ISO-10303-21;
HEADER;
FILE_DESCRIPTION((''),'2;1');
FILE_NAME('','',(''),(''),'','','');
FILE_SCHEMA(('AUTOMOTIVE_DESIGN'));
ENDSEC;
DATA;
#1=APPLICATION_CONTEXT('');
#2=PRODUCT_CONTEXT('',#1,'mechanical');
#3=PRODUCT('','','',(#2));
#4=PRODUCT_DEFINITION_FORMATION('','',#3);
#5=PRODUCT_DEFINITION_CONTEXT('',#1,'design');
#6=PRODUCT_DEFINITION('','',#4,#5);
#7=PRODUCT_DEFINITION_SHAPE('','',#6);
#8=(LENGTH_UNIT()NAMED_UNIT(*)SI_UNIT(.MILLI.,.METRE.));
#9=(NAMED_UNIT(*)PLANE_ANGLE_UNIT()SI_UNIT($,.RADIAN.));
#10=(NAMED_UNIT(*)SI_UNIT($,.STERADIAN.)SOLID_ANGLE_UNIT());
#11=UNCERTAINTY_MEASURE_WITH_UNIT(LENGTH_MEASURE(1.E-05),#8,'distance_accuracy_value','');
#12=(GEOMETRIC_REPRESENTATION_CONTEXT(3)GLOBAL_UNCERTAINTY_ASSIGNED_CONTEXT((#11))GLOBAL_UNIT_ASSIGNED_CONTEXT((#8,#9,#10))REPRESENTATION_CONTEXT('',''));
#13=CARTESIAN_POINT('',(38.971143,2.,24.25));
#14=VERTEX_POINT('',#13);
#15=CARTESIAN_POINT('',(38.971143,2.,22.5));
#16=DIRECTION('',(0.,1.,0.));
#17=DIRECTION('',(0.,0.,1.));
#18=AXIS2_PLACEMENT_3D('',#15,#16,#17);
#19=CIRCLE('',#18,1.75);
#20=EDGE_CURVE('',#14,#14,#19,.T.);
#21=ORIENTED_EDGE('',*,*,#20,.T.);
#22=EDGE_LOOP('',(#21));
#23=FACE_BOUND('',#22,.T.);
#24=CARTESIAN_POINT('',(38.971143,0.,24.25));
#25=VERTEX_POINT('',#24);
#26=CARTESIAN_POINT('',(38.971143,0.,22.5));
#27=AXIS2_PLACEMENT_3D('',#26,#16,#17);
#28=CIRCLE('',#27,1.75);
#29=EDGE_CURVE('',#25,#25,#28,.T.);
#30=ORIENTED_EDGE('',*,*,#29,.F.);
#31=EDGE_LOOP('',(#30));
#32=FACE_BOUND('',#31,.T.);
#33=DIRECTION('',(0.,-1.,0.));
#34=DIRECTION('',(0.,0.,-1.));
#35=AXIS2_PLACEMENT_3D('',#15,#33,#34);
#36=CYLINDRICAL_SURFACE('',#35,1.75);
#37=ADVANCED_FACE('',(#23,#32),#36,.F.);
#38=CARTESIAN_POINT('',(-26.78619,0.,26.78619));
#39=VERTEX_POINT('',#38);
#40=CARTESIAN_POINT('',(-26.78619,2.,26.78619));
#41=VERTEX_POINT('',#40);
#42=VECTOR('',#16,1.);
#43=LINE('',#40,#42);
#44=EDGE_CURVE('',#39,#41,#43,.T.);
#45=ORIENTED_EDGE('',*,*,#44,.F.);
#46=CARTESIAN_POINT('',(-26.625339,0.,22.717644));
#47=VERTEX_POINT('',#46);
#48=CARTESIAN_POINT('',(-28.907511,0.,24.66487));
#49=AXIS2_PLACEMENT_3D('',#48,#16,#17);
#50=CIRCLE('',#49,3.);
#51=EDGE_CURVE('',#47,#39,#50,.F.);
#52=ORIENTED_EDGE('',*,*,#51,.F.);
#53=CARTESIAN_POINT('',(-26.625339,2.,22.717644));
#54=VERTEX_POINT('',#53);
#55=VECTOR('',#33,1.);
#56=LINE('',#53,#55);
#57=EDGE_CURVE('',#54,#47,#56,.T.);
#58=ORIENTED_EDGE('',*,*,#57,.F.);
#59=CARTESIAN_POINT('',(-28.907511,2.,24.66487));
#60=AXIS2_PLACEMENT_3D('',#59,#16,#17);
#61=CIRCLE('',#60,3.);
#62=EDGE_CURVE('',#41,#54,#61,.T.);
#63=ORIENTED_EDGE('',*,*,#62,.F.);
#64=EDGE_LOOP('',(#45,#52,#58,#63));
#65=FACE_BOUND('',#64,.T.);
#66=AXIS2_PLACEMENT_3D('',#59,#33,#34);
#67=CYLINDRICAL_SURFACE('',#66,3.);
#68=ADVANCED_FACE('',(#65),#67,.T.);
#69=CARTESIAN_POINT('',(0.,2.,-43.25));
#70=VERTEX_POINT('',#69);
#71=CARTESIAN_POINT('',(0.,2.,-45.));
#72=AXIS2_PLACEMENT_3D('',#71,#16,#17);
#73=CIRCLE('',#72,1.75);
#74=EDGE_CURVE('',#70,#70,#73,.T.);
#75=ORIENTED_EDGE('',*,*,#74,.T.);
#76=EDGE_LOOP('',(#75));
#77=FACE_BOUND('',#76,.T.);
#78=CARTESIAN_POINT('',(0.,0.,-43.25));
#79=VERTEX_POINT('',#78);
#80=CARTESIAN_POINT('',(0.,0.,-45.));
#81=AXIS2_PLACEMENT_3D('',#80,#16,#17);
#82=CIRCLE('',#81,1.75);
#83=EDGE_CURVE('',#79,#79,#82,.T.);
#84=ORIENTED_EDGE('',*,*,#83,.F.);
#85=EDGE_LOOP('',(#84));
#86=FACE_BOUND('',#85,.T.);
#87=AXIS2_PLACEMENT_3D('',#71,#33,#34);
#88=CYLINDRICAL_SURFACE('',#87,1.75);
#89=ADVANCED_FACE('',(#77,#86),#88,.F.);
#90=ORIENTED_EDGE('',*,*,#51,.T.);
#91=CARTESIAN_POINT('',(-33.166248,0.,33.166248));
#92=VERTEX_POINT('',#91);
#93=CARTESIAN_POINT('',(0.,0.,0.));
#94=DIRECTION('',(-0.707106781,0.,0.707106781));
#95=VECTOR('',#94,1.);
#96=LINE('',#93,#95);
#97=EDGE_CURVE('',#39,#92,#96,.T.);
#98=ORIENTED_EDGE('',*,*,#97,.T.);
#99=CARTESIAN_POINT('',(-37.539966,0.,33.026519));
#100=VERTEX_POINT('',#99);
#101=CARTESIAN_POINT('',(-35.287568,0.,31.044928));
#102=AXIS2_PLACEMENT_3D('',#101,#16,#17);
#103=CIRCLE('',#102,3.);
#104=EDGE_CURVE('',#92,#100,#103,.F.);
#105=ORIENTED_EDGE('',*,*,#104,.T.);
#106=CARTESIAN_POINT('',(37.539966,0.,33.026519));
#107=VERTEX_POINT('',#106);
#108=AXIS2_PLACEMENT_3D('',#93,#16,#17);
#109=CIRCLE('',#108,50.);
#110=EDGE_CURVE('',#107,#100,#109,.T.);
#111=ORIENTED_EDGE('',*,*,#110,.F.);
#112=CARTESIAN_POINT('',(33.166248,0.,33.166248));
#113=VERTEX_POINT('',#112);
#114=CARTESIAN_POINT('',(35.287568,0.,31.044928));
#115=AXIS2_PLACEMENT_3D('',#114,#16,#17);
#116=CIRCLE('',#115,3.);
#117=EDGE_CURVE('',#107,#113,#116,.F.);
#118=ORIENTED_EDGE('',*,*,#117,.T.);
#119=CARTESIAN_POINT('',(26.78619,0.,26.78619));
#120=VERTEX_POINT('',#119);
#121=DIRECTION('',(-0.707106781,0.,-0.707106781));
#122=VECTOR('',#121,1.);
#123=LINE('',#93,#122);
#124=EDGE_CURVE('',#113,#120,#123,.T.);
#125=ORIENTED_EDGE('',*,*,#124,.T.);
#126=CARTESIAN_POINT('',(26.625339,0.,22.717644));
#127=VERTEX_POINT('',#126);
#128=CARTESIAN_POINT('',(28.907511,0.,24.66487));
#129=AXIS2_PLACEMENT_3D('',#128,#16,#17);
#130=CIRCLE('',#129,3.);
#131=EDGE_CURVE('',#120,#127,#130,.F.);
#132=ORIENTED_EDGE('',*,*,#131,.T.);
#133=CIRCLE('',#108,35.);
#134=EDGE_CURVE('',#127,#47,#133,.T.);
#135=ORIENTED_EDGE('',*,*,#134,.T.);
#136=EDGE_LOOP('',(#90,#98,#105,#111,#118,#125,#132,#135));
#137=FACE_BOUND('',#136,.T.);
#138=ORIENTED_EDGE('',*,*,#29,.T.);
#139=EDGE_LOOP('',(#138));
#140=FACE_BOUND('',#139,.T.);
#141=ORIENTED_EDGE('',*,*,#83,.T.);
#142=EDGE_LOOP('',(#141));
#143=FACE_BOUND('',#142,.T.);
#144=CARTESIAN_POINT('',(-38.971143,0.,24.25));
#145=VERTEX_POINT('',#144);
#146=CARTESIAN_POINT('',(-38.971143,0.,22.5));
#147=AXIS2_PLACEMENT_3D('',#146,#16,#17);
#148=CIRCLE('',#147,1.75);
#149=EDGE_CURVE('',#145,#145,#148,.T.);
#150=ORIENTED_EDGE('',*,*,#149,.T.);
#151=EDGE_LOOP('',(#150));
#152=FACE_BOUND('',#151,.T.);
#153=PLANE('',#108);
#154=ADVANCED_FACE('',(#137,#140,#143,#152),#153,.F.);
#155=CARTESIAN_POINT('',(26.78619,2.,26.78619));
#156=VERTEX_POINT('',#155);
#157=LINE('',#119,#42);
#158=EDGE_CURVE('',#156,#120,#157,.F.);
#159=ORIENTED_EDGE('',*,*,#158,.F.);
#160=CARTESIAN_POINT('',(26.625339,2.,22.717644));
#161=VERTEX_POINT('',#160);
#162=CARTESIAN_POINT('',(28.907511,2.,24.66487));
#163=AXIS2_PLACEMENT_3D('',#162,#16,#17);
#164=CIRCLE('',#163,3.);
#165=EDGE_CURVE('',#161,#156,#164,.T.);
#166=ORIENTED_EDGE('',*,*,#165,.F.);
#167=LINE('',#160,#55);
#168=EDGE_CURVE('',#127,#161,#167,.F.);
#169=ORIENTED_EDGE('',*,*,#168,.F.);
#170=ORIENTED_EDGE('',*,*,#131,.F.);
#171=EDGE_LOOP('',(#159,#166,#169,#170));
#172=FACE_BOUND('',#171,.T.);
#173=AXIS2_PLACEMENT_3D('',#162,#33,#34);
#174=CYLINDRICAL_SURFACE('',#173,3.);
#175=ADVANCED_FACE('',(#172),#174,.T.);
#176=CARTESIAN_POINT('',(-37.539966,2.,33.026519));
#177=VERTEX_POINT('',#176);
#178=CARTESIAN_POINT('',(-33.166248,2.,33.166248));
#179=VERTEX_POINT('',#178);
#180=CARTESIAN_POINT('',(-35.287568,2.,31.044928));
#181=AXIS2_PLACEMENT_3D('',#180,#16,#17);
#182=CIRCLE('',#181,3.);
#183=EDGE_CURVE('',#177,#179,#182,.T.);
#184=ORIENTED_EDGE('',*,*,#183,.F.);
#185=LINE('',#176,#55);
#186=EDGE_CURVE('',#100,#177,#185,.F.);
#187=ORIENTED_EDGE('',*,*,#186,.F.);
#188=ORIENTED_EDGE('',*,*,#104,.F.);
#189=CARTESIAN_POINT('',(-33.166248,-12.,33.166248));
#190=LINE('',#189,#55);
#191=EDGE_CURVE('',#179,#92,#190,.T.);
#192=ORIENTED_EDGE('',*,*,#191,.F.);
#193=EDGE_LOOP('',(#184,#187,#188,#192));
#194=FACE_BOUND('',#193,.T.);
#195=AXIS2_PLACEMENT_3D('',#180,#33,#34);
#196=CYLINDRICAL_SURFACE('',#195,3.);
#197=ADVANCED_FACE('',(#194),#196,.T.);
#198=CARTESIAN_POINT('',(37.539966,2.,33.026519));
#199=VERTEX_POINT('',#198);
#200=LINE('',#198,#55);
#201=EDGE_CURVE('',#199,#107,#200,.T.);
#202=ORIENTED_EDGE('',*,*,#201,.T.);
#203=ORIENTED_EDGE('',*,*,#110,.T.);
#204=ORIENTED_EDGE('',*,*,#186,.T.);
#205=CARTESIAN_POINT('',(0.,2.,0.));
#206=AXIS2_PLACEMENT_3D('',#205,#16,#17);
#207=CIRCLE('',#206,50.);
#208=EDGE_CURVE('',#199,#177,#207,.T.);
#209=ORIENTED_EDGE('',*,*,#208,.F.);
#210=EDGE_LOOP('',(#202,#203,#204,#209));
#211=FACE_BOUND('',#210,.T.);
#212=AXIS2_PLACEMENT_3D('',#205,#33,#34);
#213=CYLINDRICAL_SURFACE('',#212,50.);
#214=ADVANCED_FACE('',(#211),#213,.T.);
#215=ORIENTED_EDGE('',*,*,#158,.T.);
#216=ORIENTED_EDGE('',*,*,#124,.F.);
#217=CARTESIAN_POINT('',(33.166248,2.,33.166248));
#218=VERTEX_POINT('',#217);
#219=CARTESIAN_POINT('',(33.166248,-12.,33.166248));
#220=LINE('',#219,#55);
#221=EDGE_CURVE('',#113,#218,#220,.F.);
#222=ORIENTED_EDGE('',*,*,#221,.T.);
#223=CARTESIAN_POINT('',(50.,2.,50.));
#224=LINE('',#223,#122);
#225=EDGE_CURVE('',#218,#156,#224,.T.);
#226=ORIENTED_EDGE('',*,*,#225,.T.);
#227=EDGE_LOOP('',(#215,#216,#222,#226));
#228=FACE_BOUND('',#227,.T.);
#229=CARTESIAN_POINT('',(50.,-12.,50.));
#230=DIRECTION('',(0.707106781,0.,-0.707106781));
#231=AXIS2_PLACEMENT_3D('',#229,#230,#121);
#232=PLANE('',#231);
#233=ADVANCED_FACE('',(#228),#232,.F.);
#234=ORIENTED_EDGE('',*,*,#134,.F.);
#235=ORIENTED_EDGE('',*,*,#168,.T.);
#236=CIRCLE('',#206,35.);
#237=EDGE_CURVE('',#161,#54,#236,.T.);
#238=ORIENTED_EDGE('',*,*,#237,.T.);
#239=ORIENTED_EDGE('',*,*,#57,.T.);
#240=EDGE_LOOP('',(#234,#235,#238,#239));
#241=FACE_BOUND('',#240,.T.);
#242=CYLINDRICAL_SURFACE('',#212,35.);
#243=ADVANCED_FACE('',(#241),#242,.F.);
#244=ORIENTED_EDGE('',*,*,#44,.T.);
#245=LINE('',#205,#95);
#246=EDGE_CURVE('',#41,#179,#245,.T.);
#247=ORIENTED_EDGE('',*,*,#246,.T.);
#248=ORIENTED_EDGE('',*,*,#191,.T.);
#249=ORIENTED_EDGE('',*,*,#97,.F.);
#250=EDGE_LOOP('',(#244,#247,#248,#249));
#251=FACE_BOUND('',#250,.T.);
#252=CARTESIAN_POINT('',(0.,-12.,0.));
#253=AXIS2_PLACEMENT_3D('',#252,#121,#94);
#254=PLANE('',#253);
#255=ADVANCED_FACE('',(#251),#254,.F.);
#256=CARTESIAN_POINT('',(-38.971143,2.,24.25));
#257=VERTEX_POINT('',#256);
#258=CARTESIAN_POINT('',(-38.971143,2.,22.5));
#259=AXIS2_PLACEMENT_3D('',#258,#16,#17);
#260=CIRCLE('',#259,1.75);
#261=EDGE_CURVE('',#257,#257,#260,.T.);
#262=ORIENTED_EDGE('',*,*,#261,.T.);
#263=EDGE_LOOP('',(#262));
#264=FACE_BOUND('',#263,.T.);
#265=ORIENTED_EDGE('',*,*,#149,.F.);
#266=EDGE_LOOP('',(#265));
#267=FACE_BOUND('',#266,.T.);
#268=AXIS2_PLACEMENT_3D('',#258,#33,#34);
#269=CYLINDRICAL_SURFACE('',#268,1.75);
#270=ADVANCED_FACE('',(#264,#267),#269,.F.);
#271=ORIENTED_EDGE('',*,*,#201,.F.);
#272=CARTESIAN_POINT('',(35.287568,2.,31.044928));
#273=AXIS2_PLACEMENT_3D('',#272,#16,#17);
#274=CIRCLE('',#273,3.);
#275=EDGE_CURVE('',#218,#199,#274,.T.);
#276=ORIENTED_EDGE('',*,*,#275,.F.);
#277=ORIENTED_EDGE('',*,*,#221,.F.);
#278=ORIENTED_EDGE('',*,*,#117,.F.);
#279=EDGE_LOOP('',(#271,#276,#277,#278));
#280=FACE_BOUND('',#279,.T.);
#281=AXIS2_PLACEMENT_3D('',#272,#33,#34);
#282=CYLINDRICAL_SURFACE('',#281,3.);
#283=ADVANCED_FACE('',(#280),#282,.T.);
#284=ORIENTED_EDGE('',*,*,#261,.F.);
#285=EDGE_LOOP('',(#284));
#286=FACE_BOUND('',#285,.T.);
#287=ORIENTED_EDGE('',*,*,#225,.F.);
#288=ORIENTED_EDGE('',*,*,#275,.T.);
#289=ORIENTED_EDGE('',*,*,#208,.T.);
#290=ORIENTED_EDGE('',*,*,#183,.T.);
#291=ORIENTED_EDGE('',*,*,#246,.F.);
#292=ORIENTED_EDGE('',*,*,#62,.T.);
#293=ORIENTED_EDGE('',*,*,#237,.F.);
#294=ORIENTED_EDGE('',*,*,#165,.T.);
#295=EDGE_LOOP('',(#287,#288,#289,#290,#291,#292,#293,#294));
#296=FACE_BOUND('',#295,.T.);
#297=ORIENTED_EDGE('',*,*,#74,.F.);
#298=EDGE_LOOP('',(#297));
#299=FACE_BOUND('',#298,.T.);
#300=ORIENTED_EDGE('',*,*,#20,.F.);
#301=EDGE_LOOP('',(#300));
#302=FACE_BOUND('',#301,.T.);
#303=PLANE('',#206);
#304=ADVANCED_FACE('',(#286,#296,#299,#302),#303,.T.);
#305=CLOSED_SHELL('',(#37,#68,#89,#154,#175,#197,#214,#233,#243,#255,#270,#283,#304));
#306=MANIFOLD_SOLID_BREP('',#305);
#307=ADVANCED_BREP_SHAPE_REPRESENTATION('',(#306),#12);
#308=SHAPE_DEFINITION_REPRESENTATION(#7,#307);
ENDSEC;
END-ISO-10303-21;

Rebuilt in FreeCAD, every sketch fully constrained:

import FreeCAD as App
import Part
import Sketcher
from FreeCAD import Vector
Q = App.Units.Quantity


def edges_at(feature, points):
    """Names of the edges that pass closest to the given points."""
    edges = feature.Shape.Edges
    near = lambda p: min(range(len(edges)), key=lambda i: edges[i].distToShape(Part.Vertex(*p))[0])
    return sorted({f"Edge{near(p) + 1}" for p in points})


def add_polygon(sketch, points):
    """Adds a closed chain of lines whose ends are joined by coincident constraints."""
    first, n = sketch.GeometryCount, len(points)
    for a, b in zip(points, points[1:] + points[:1]):
        sketch.addGeometry(Part.LineSegment(App.Vector(*a, 0), App.Vector(*b, 0)), False)
    for i in range(n):
        sketch.addConstraint(Sketcher.Constraint("Coincident", first + i, 2, first + (i + 1) % n, 1))

doc = App.newDocument("Part")
body = doc.addObject("PartDesign::Body", "Body")

sketch1 = doc.addObject("Sketcher::SketchObject", "Sketch")
body.addObject(sketch1)
sketch1.AttachmentSupport = (doc.XZ_Plane, [""])
sketch1.MapMode = "FlatFace"
sketch1.addGeometry(Part.Circle(Vector(0, 0, 0), Vector(0, 0, 1), 50), False)
sketch1.addGeometry(Part.Circle(Vector(0, -45, 0), Vector(0, 0, 1), 1.8), False)
sketch1.addGeometry(Part.Circle(Vector(-39, 22.5, 0), Vector(0, 0, 1), 1.8), False)
sketch1.addGeometry(Part.Circle(Vector(0, 0, 0), Vector(0, 0, 1), 35), False)
sketch1.addGeometry(Part.Circle(Vector(39, 22.5, 0), Vector(0, 0, 1), 1.8), False)
sketch1.addConstraint(Sketcher.Constraint("Coincident", 0, 3, -1, 1))
sketch1.addConstraint(Sketcher.Constraint("Coincident", 3, 3, -1, 1))
sketch1.addConstraint(Sketcher.Constraint("Equal", 1, 2))
sketch1.addConstraint(Sketcher.Constraint("Equal", 2, 4))
sketch1.addConstraint(Sketcher.Constraint("Symmetric", 2, 3, 4, 3, -2))
sketch1.addConstraint(Sketcher.Constraint("PointOnObject", 1, 3, -2))
sketch1.addConstraint(Sketcher.Constraint("Diameter", 0, Q("100 mm")))
sketch1.addConstraint(Sketcher.Constraint("Diameter", 3, Q("70 mm")))
sketch1.addConstraint(Sketcher.Constraint("Diameter", 1, Q("3.5 mm")))
sketch1.addConstraint(Sketcher.Constraint("DistanceY", 1, 3, -1, 1, Q("45 mm")))
sketch1.addConstraint(Sketcher.Constraint("DistanceY", -1, 1, 2, 3, Q("22.5 mm")))
sketch1.addConstraint(Sketcher.Constraint("DistanceX", 2, 3, -1, 1, Q("38.971143 mm")))
pad1 = doc.addObject("PartDesign::Pad", "Pad")
body.addObject(pad1)
pad1.Profile = sketch1
pad1.Length = 2
pad1.Reversed = True

sketch2 = doc.addObject("Sketcher::SketchObject", "Sketch001")
body.addObject(sketch2)
sketch2.AttachmentSupport = (doc.XZ_Plane, [""])
sketch2.MapMode = "FlatFace"
sketch2.AttachmentOffset = App.Placement(Vector(0, 0, -2), App.Rotation())
add_polygon(sketch2, [(0, 0), (-50, 50), (50, 50)])
sketch2.addConstraint(Sketcher.Constraint("Horizontal", 1))
sketch2.addConstraint(Sketcher.Constraint("Coincident", 2, 2, -1, 1))
sketch2.addConstraint(Sketcher.Constraint("Perpendicular", 0, 2))
sketch2.addConstraint(Sketcher.Constraint("Equal", 0, 2))
sketch2.addConstraint(Sketcher.Constraint("DistanceX", 1, 1, 1, 2, Q("100 mm")))
pocket1 = doc.addObject("PartDesign::Pocket", "Pocket")
body.addObject(pocket1)
pocket1.Profile = sketch2
pocket1.Length = 14
pocket1.Reversed = True
doc.recompute()

fillet = doc.addObject("PartDesign::Fillet", "Fillet")
body.addObject(fillet)
fillet.Base = (pocket1, edges_at(pocket1, [
    (-24.749, 1, 24.749),
    (24.749, 1, 24.749),
    (35.355, 1, 35.355),
    (-35.355, 1, 35.355),
]))
fillet.Radius = 3

doc.recompute()
